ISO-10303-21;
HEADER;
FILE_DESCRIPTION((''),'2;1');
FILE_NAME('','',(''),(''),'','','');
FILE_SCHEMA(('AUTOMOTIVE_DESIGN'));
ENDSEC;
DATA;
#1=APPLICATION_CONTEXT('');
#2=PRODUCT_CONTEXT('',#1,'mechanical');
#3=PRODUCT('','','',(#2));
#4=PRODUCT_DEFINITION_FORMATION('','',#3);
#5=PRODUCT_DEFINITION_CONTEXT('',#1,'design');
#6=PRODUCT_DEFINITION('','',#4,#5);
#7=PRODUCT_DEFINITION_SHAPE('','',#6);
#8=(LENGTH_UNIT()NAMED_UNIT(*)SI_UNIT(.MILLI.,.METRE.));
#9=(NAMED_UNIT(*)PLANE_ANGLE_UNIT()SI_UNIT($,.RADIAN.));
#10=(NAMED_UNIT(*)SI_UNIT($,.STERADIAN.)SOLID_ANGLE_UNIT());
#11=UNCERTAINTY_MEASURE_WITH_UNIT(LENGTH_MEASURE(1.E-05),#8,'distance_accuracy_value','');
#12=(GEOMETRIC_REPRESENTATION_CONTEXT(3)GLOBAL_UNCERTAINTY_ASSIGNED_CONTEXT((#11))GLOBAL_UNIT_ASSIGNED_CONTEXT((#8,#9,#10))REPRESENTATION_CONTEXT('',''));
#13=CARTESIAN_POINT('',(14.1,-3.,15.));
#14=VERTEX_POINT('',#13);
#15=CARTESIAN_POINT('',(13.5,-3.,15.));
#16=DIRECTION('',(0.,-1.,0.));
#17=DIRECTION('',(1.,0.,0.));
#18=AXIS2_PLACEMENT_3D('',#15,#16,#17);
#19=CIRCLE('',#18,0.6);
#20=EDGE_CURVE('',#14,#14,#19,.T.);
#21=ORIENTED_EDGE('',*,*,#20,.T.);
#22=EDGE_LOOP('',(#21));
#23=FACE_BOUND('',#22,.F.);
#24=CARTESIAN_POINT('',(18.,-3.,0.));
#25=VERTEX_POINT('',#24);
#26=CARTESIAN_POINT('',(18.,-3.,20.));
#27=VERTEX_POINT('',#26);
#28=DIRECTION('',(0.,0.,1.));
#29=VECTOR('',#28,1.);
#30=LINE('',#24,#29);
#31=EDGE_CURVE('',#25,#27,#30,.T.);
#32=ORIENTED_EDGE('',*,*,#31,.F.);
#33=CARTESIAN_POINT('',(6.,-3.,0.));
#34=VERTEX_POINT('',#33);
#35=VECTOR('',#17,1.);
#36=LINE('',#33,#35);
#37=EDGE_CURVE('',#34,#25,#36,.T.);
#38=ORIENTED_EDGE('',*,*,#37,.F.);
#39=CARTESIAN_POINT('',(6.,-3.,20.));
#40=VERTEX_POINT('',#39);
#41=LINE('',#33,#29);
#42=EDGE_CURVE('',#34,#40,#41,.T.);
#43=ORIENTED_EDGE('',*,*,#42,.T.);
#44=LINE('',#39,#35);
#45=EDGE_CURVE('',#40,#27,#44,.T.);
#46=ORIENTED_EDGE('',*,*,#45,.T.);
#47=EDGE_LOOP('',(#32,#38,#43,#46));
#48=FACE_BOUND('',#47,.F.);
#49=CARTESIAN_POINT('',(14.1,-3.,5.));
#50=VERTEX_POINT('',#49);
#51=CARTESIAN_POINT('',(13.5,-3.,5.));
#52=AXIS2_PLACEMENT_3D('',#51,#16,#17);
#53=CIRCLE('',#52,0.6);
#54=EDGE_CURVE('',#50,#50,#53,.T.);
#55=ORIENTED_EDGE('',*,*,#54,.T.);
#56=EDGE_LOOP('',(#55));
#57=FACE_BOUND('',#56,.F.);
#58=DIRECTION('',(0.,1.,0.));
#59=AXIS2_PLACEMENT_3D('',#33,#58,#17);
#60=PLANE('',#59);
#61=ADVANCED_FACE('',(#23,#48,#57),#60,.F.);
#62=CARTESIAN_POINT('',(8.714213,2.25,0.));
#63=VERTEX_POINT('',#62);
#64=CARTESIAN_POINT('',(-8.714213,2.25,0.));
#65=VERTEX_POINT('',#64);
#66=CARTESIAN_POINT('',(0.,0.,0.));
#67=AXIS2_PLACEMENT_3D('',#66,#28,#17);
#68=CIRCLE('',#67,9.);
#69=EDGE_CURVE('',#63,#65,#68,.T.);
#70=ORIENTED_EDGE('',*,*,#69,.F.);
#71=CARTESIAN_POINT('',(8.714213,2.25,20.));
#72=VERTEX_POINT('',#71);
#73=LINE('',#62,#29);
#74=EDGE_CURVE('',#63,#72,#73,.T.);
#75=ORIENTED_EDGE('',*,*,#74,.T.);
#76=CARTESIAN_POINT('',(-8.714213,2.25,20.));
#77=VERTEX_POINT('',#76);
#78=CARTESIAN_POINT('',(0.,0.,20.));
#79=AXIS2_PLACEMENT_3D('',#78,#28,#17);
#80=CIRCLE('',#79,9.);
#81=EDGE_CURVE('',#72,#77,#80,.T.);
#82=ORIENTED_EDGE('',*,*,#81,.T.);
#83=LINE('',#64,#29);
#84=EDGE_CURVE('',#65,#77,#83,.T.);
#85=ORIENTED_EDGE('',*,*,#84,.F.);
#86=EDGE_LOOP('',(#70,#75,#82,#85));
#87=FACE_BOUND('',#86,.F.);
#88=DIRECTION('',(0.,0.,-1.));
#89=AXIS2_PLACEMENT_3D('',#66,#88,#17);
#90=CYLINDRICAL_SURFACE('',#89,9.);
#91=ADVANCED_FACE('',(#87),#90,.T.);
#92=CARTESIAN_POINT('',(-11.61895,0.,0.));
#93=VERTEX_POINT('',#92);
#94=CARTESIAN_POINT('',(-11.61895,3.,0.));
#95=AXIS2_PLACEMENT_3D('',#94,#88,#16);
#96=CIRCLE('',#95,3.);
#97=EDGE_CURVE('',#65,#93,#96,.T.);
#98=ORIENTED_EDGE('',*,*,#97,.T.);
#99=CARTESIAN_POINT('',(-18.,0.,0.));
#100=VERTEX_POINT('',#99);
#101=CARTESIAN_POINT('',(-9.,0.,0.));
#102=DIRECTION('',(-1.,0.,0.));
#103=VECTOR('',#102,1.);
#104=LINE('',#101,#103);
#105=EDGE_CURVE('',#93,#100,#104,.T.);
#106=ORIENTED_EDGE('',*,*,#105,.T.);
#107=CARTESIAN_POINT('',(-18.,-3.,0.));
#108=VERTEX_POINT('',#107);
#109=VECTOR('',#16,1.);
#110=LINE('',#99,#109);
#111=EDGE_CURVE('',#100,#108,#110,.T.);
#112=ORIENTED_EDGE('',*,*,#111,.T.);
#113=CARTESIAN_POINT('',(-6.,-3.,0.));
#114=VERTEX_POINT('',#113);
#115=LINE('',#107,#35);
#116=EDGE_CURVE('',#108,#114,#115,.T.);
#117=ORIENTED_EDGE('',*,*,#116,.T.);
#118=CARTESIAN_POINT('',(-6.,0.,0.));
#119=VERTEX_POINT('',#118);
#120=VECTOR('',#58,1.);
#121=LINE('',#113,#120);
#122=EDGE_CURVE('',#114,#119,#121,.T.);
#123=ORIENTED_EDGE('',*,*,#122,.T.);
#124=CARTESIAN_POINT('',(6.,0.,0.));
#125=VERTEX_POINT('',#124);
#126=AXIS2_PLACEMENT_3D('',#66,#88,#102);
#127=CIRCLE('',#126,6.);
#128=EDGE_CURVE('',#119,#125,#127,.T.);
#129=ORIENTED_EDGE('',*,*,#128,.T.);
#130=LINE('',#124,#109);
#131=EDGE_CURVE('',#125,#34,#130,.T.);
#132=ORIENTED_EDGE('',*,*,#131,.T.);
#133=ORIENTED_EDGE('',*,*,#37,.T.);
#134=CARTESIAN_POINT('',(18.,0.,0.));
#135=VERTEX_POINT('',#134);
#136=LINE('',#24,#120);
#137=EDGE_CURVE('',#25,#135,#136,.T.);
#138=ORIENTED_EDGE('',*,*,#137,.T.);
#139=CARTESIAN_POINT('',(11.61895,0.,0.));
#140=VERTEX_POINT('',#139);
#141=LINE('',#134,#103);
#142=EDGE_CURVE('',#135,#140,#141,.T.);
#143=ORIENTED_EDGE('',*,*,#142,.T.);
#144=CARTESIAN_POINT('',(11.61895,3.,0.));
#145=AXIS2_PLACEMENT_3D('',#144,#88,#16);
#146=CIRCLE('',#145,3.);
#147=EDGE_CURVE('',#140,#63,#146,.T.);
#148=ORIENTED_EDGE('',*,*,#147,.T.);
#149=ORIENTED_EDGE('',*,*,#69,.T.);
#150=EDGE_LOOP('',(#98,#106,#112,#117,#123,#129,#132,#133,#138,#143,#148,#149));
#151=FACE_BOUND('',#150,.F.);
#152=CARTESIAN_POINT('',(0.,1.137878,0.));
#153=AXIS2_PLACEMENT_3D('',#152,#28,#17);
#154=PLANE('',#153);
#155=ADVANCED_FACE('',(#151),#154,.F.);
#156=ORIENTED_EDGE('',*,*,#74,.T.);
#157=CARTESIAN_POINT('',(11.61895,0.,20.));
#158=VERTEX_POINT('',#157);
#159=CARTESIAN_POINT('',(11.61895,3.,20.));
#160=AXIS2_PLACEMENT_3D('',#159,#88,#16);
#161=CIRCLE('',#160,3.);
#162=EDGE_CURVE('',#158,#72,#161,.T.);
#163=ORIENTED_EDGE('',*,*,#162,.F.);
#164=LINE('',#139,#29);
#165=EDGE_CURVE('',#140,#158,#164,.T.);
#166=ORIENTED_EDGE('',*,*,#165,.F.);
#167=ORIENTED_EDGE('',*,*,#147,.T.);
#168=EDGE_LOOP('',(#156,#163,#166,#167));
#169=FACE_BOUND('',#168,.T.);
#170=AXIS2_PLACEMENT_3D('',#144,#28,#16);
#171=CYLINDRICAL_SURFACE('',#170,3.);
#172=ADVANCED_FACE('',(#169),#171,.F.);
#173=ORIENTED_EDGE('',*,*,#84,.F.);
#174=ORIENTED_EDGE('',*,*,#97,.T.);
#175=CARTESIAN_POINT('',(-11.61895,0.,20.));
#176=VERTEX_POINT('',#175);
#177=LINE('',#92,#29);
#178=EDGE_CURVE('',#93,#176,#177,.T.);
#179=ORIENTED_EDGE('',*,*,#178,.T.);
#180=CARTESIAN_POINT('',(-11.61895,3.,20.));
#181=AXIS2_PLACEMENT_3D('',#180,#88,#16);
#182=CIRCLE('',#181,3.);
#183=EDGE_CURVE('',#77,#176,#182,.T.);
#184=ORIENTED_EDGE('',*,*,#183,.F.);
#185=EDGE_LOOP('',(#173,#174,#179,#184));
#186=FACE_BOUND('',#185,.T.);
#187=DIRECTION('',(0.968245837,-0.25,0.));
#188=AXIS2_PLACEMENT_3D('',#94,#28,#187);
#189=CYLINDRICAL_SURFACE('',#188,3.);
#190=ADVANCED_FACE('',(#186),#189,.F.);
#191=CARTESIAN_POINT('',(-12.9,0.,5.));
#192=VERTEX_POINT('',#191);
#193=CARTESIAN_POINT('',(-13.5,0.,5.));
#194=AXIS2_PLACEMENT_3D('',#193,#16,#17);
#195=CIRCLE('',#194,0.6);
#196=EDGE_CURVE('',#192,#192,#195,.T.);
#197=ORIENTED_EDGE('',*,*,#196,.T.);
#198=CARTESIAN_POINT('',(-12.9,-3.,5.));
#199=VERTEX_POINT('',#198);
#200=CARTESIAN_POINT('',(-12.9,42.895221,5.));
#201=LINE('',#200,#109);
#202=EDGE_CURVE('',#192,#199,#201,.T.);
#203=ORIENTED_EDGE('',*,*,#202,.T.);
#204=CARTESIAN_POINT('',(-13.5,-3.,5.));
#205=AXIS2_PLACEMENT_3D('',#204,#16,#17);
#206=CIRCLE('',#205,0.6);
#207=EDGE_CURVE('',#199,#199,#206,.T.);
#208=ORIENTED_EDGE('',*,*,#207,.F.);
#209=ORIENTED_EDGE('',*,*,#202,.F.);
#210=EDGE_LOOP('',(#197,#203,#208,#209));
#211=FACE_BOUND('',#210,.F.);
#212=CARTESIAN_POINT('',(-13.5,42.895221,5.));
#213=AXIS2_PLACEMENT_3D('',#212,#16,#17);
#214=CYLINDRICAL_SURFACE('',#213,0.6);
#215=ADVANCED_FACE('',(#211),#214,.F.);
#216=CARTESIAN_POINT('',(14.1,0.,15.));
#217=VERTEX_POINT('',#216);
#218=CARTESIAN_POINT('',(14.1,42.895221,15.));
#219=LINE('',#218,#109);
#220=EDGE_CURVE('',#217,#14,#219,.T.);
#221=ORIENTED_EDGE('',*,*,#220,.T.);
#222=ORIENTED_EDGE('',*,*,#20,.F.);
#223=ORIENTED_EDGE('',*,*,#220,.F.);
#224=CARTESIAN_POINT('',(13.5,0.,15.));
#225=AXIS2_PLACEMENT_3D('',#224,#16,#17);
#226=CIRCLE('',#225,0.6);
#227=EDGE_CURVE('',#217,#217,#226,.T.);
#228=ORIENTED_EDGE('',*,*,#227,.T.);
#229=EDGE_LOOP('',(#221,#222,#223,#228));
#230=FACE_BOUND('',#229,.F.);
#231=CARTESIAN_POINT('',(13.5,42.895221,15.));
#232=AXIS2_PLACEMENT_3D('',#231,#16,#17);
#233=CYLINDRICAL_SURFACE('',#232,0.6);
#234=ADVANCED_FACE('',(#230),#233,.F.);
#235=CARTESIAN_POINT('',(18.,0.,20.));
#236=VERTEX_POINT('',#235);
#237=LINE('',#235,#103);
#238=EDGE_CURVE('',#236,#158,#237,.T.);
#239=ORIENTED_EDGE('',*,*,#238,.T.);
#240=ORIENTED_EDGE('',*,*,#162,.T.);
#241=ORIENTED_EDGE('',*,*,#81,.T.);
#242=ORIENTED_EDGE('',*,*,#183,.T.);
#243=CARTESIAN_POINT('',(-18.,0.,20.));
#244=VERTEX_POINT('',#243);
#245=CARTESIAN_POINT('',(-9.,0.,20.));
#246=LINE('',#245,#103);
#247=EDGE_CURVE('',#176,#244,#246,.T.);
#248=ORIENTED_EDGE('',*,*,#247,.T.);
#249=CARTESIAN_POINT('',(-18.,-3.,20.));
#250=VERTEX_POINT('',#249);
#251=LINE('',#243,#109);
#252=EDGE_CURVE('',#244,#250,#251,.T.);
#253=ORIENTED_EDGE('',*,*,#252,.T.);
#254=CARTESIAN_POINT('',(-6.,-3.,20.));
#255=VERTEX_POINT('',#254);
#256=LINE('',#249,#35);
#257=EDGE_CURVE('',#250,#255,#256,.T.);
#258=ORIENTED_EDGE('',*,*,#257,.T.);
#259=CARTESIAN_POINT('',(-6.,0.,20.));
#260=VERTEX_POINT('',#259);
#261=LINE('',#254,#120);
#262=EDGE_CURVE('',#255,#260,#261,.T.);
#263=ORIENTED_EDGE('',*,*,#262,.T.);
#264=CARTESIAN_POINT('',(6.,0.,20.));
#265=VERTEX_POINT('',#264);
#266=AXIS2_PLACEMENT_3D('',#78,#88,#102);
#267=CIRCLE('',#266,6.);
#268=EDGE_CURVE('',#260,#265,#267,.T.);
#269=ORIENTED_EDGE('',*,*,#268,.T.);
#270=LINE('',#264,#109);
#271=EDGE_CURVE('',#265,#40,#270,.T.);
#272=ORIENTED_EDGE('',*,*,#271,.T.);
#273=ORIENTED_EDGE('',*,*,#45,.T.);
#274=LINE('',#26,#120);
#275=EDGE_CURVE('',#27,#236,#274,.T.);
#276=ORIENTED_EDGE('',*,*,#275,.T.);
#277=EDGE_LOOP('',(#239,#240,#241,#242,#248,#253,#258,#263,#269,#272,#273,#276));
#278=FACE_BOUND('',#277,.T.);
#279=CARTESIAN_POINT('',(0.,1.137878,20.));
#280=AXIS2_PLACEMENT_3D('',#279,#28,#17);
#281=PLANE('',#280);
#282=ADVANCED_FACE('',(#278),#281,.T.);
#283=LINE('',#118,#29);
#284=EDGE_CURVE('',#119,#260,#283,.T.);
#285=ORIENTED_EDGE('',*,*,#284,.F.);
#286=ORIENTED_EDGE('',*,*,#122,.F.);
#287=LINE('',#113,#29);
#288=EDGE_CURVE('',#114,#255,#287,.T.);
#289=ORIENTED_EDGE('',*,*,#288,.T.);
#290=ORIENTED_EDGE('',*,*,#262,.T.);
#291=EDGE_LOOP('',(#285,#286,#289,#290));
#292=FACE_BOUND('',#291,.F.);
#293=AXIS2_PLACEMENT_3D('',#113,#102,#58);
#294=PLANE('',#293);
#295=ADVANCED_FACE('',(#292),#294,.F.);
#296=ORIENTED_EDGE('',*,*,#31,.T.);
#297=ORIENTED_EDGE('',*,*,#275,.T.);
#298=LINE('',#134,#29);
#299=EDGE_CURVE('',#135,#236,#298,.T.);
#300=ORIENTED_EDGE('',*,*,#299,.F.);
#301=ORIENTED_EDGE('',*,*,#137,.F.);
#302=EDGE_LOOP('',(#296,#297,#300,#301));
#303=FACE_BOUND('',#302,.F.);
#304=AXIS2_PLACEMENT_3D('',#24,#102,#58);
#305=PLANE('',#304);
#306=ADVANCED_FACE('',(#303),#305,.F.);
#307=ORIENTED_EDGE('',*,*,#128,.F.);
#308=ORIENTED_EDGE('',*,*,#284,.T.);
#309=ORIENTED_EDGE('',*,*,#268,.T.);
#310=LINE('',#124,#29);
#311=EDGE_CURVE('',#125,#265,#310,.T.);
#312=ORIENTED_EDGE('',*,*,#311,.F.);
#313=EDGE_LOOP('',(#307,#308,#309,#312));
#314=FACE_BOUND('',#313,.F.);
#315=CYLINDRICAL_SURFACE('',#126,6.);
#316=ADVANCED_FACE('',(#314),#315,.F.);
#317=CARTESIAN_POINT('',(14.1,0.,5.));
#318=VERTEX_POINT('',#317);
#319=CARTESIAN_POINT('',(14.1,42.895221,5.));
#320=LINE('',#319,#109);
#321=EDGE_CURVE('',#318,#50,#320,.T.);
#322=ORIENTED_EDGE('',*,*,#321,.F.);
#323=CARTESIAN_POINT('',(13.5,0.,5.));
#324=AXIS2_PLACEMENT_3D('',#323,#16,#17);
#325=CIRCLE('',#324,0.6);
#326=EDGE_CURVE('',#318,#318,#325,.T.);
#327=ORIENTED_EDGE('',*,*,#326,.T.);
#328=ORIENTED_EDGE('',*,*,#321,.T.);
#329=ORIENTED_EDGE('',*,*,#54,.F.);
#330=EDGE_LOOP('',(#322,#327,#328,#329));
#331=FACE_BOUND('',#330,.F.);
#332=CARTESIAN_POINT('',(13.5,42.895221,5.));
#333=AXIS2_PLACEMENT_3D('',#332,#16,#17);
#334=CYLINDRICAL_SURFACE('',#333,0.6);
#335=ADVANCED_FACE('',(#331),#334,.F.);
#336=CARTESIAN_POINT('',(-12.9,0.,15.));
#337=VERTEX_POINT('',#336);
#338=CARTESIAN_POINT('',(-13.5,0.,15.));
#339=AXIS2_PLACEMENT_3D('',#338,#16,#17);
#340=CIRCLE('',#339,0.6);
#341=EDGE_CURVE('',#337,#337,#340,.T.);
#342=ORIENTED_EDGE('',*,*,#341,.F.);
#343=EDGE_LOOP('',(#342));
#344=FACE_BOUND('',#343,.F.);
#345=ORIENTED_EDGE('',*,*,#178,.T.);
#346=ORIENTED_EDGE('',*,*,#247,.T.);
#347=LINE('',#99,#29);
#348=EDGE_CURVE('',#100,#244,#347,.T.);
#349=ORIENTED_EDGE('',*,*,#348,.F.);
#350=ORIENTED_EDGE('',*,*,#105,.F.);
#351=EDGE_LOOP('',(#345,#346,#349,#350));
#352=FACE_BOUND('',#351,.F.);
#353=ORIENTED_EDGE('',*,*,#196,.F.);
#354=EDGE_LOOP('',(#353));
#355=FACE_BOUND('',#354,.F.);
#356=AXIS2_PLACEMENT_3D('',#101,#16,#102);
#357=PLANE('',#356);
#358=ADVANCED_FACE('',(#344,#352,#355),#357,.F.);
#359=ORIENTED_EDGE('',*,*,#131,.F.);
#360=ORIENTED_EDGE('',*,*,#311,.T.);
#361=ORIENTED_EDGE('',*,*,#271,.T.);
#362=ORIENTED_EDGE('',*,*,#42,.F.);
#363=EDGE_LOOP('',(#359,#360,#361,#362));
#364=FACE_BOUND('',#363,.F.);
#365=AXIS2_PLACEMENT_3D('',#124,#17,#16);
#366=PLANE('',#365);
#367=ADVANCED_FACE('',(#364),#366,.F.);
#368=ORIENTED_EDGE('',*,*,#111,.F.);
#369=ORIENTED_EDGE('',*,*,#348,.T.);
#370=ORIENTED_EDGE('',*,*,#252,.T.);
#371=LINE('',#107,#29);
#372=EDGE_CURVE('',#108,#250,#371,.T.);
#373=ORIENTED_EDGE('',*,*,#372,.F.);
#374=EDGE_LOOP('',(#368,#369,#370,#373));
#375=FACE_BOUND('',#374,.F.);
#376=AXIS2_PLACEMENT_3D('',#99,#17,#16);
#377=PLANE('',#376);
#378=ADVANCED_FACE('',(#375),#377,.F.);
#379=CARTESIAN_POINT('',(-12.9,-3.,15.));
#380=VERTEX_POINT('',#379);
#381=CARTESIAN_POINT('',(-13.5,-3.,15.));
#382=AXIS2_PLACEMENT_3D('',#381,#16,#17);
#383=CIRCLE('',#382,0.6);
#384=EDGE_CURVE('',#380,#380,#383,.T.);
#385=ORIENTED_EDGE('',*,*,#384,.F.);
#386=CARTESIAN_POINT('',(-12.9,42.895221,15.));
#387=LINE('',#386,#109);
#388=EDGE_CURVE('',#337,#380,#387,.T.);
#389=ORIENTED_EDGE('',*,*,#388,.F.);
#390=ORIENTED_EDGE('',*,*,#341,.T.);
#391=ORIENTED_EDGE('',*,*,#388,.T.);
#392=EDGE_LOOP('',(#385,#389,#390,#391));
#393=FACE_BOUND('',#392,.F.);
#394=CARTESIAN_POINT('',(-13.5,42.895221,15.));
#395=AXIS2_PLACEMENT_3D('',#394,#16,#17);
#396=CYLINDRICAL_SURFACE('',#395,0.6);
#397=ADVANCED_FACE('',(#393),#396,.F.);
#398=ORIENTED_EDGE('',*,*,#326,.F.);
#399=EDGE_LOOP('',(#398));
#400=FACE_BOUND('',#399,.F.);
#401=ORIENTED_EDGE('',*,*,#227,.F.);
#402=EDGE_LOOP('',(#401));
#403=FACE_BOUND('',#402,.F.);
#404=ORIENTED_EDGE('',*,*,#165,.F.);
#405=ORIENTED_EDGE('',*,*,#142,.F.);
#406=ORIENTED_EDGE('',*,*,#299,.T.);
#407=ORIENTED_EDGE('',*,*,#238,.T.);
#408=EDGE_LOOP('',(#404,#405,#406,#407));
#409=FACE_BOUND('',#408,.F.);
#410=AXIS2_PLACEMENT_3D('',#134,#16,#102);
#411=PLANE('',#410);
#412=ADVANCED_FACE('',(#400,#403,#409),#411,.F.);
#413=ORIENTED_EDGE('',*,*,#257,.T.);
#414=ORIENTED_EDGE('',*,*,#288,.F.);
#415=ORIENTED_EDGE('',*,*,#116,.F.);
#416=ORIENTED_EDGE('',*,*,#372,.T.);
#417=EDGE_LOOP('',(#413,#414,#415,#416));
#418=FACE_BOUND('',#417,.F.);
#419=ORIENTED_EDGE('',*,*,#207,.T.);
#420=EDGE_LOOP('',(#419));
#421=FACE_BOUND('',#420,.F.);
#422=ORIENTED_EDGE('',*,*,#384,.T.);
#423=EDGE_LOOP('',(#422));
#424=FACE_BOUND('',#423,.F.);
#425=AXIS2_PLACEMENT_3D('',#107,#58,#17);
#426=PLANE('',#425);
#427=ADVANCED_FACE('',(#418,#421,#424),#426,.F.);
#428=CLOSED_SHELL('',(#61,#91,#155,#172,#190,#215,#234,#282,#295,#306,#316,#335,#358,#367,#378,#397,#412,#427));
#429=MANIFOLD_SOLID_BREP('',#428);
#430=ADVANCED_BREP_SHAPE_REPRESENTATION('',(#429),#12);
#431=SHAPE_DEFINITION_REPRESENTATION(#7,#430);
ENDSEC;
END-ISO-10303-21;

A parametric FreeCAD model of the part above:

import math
import FreeCAD as App
import Part
import Sketcher
from FreeCAD import Vector


def edges_at(feature, points):
    """Names of the edges that pass closest to the given points."""
    edges = feature.Shape.Edges
    near = lambda p: min(range(len(edges)), key=lambda i: edges[i].distToShape(Part.Vertex(*p))[0])
    return sorted({f"Edge{near(p) + 1}" for p in points})

doc = App.newDocument("Part")
body = doc.addObject("PartDesign::Body", "Body")

# Sketch on XY plane
sketch1 = body.newObject("Sketcher::SketchObject", "Sketch")
sketch1.AttachmentSupport = (doc.getObject("XY_Plane"), [""])
sketch1.MapMode = "FlatFace"
sketch1.addGeometry(Part.ArcOfCircle(Part.Circle(Vector(0, 0, 0), Vector(0, 0, 1), 6), math.radians(0), math.radians(180)), False)
sketch1.addGeometry(Part.LineSegment(Vector(6, 0, 0), Vector(6, -3, 0)), False)
sketch1.addGeometry(Part.LineSegment(Vector(6, -3, 0), Vector(18, -3, 0)), False)
sketch1.addGeometry(Part.LineSegment(Vector(18, -3, 0), Vector(18, 0, 0)), False)
sketch1.addGeometry(Part.LineSegment(Vector(18, 0, 0), Vector(9, 0, 0)), False)
sketch1.addGeometry(Part.ArcOfCircle(Part.Circle(Vector(0, 0, 0), Vector(0, 0, 1), 9), math.radians(0), math.radians(180)), False)
sketch1.addGeometry(Part.LineSegment(Vector(-9, 0, 0), Vector(-18, 0, 0)), False)
sketch1.addGeometry(Part.LineSegment(Vector(-18, 0, 0), Vector(-18, -3, 0)), False)
sketch1.addGeometry(Part.LineSegment(Vector(-18, -3, 0), Vector(-6, -3, 0)), False)
sketch1.addGeometry(Part.LineSegment(Vector(-6, -3, 0), Vector(-6, 0, 0)), False)
sketch1.addConstraint(Sketcher.Constraint("Tangent", 0, 1, 1, 1))
sketch1.addConstraint(Sketcher.Constraint("Coincident", 1, 2, 2, 1))
sketch1.addConstraint(Sketcher.Constraint("Coincident", 2, 2, 3, 1))
sketch1.addConstraint(Sketcher.Constraint("Coincident", 3, 2, 4, 1))
sketch1.addConstraint(Sketcher.Constraint("Coincident", 4, 2, 5, 1))
sketch1.addConstraint(Sketcher.Constraint("Coincident", 5, 2, 6, 1))
sketch1.addConstraint(Sketcher.Constraint("Coincident", 6, 2, 7, 1))
sketch1.addConstraint(Sketcher.Constraint("Coincident", 7, 2, 8, 1))
sketch1.addConstraint(Sketcher.Constraint("Coincident", 8, 2, 9, 1))
sketch1.addConstraint(Sketcher.Constraint("Tangent", 9, 2, 0, 2))
sketch1.addConstraint(Sketcher.Constraint("Vertical", 1))
sketch1.addConstraint(Sketcher.Constraint("Horizontal", 2))
sketch1.addConstraint(Sketcher.Constraint("Vertical", 3))
sketch1.addConstraint(Sketcher.Constraint("Horizontal", 4))
sketch1.addConstraint(Sketcher.Constraint("Horizontal", 6))
sketch1.addConstraint(Sketcher.Constraint("Vertical", 7))
sketch1.addConstraint(Sketcher.Constraint("Horizontal", 8))
sketch1.addConstraint(Sketcher.Constraint("Vertical", 9))
sketch1.addConstraint(Sketcher.Constraint("Coincident", 0, 3, -1, 1))
sketch1.addConstraint(Sketcher.Constraint("Coincident", 5, 3, -1, 1))
sketch1.addConstraint(Sketcher.Constraint("Symmetric", 3, 2, 6, 2, -1, 1))
sketch1.addConstraint(Sketcher.Constraint("PointOnObject", 3, 2, -1))
sketch1.addConstraint(Sketcher.Constraint("Horizontal", 2, 2, 7, 2))
sketch1.addConstraint(Sketcher.Constraint("Radius", 0, 6.0))
sketch1.addConstraint(Sketcher.Constraint("Radius", 5, 9.0))
sketch1.addConstraint(Sketcher.Constraint("DistanceX", 2, 1, 2, 2, 12.0))
sketch1.addConstraint(Sketcher.Constraint("DistanceY", 1, 2, 1, 1, 3.0))
pad1 = body.newObject("PartDesign::Pad", "Pad")
pad1.Profile = sketch1
pad1.Length = 20

# Sketch on XZ plane
sketch2 = body.newObject("Sketcher::SketchObject", "Sketch001")
sketch2.AttachmentSupport = (doc.getObject("XZ_Plane"), [""])
sketch2.MapMode = "FlatFace"
sketch2.addGeometry(Part.Circle(Vector(13.5, 15, 0), Vector(0, 0, 1), 0.6), False)
sketch2.addGeometry(Part.Circle(Vector(13.5, 5, 0), Vector(0, 0, 1), 0.6), False)
sketch2.addGeometry(Part.Circle(Vector(-13.5, 15, 0), Vector(0, 0, 1), 0.6), False)
sketch2.addGeometry(Part.Circle(Vector(-13.5, 5, 0), Vector(0, 0, 1), 0.6), False)
sketch2.addConstraint(Sketcher.Constraint("Equal", 0, 1))
sketch2.addConstraint(Sketcher.Constraint("Equal", 1, 2))
sketch2.addConstraint(Sketcher.Constraint("Equal", 2, 3))
sketch2.addConstraint(Sketcher.Constraint("Symmetric", 0, 3, 2, 3, -2))
sketch2.addConstraint(Sketcher.Constraint("Symmetric", 1, 3, 3, 3, -2))
sketch2.addConstraint(Sketcher.Constraint("Vertical", 0, 3, 1, 3))
sketch2.addConstraint(Sketcher.Constraint("Diameter", 0, 1.2))
sketch2.addConstraint(Sketcher.Constraint("DistanceY", -1, 1, 0, 3, 15.0))
sketch2.addConstraint(Sketcher.Constraint("DistanceY", -1, 1, 1, 3, 5.0))
sketch2.addConstraint(Sketcher.Constraint("DistanceX", 2, 3, 0, 3, 27.0))
doc.recompute()
hole = body.newObject("PartDesign::Hole", "Hole")
hole.Profile = sketch2
hole.ThreadType = "None"
hole.Diameter = 1.2
hole.DepthType = "ThroughAll"
hole.Reversed = True
doc.recompute()

fillet = body.newObject("PartDesign::Fillet", "Fillet")
fillet.Base = (hole, edges_at(hole, [(9, 0, 10), (-9, 0, 10)]))
fillet.Radius = 3

doc.recompute()
